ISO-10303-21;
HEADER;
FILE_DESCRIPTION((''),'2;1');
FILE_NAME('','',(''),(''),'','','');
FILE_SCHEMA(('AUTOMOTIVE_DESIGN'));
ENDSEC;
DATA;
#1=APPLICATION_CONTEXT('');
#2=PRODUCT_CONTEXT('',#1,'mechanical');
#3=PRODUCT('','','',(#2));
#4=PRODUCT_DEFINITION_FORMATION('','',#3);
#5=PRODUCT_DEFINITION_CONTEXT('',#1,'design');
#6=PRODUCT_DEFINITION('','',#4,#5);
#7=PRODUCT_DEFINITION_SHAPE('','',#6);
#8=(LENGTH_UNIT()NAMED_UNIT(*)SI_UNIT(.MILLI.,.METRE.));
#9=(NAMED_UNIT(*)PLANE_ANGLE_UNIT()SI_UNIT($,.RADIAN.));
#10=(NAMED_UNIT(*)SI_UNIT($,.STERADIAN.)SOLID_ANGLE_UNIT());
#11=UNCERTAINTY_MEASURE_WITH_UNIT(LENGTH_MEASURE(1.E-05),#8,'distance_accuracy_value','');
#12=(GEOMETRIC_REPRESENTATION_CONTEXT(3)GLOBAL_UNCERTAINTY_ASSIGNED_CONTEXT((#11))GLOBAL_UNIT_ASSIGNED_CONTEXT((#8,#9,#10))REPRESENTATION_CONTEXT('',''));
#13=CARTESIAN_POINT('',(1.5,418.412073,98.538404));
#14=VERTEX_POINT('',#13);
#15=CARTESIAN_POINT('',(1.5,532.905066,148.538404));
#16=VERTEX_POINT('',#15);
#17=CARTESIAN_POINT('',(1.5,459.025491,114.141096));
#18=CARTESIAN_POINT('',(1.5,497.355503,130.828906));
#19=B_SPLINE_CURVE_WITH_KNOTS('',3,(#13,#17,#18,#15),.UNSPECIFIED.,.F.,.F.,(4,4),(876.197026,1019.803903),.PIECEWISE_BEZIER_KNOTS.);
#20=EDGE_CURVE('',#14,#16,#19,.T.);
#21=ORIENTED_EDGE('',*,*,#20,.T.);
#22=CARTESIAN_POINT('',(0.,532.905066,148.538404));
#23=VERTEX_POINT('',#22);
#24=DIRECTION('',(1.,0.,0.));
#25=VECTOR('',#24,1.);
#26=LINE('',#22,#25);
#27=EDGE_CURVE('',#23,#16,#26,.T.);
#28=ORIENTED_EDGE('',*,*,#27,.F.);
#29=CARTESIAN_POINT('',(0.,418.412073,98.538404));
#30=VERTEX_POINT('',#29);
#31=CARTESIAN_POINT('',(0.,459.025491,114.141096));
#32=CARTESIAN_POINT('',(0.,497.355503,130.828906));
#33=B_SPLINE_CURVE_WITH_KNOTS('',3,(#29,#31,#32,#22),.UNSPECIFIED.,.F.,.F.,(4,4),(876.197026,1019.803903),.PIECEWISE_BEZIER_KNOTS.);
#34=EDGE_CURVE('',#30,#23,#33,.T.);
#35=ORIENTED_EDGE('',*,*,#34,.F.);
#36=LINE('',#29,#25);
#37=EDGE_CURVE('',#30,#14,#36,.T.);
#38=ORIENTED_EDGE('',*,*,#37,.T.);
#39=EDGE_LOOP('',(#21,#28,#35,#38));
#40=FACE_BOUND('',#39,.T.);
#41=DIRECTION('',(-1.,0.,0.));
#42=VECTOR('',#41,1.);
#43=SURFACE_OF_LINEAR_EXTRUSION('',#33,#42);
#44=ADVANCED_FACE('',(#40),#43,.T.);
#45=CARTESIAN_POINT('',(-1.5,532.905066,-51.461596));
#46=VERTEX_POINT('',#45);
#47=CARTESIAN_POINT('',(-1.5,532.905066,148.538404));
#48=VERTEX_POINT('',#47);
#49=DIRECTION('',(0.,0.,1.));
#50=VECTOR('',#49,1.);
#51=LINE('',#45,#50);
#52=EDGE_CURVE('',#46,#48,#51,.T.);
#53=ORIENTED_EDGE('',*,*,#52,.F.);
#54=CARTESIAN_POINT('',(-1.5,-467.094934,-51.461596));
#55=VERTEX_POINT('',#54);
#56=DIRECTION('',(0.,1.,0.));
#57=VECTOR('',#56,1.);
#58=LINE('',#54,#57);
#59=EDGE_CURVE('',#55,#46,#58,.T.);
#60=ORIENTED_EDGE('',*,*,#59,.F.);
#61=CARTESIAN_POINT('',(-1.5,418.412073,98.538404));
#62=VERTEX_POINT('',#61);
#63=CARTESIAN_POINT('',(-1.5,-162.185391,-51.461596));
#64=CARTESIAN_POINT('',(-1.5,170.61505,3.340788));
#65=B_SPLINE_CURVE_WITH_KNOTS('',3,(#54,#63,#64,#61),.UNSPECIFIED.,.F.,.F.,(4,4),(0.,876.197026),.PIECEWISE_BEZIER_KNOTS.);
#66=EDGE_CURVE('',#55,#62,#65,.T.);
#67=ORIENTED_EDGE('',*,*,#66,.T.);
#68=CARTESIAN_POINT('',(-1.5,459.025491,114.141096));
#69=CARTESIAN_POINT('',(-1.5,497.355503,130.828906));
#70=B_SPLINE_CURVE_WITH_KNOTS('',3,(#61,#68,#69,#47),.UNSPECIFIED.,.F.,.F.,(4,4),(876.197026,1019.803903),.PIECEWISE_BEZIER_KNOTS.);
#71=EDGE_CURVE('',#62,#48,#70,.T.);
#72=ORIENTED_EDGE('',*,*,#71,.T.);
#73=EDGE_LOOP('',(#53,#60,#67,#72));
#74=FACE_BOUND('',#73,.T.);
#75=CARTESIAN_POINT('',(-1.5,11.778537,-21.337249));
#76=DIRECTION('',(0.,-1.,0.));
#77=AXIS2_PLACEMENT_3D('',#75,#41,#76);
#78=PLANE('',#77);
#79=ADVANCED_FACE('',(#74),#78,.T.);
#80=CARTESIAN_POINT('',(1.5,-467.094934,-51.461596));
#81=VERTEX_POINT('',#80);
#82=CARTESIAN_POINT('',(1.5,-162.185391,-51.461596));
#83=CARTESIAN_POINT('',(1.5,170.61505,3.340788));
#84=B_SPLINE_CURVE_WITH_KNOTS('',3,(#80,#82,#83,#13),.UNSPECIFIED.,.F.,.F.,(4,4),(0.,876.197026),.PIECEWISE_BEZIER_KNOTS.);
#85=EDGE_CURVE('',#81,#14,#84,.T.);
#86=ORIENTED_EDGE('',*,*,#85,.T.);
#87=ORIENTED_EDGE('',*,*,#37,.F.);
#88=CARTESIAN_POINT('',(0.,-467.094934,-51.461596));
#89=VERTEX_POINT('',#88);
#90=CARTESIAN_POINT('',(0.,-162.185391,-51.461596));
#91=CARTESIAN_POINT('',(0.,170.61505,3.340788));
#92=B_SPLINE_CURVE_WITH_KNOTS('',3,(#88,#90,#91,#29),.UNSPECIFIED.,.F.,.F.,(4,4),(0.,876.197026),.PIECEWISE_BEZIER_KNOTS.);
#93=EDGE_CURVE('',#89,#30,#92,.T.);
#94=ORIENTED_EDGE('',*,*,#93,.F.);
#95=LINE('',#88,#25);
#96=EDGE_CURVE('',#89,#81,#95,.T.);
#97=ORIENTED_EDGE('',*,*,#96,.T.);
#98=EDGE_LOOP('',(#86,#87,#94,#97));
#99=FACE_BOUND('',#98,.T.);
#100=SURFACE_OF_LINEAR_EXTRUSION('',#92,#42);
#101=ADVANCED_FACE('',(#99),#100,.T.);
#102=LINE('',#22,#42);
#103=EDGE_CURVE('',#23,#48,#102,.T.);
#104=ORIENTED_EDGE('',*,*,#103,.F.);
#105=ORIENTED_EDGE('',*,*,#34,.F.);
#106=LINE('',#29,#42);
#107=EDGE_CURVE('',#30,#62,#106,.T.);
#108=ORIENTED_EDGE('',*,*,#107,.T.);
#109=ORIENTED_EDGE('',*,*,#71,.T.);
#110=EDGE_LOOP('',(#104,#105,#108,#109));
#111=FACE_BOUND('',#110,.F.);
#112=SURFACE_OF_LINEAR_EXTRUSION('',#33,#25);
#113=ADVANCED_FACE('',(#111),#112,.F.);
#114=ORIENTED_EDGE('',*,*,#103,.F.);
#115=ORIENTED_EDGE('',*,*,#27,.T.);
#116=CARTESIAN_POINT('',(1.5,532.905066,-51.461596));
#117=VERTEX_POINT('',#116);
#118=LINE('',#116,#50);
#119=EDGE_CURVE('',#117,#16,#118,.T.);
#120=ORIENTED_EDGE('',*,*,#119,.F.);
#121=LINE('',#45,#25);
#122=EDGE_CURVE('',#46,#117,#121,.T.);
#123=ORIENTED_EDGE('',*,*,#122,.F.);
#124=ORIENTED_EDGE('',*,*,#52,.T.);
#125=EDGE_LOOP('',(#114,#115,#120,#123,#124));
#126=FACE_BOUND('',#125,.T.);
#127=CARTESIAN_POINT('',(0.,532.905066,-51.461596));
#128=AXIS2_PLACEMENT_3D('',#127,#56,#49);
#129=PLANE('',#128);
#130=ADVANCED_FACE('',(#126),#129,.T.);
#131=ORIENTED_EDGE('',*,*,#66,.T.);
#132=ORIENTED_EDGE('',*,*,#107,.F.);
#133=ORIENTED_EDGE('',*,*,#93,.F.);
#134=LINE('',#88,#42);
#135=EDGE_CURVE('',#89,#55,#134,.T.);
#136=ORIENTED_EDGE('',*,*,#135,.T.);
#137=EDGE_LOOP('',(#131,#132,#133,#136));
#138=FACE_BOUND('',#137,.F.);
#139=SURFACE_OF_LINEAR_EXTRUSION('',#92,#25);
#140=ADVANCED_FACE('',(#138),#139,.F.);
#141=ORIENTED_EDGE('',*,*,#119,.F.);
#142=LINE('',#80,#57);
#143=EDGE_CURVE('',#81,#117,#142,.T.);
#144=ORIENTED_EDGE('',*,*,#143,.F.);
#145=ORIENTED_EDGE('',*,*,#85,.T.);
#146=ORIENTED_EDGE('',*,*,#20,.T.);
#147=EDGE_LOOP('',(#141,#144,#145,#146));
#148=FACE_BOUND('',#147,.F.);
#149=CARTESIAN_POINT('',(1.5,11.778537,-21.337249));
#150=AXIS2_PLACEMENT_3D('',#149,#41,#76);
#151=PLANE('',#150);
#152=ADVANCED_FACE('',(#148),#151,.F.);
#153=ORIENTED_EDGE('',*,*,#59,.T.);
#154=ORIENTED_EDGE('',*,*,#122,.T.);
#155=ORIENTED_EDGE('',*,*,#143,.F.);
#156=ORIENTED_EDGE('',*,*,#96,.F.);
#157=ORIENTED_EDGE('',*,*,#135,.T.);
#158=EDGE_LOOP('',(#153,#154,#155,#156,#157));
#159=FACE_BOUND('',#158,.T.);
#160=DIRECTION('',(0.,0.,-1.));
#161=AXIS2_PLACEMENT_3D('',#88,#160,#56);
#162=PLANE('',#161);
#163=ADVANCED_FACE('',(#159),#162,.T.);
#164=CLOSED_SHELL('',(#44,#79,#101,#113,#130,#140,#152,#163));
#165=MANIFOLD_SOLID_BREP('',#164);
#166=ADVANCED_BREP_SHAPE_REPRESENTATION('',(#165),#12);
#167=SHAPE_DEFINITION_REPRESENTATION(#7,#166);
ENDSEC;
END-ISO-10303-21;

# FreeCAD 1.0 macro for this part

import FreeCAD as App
import Part
import Sketcher

V = App.Vector

doc = App.newDocument("Part")
body = doc.addObject("PartDesign::Body", "Body")

# Sketch on YZ plane
sketch1 = body.newObject("Sketcher::SketchObject", "Sketch")
sketch1.AttachmentSupport = (doc.getObject("YZ_Plane"), [""])
sketch1.MapMode = "FlatFace"
sketch1.addGeometry(Part.BSplineCurve([V(-467.094934, -51.461596, 0), V(-162.185391, -51.461596, 0), V(170.61505, 3.340788, 0), V(418.412073, 98.538404, 0)], [4, 4], [0, 876.197026], False, 3, [1, 1, 1, 1], False), False)
sketch1.addGeometry(Part.LineSegment(V(-467.094934, -51.461596, 0), V(532.905066, -51.461596, 0)), False)
sketch1.addGeometry(Part.LineSegment(V(532.905066, -51.461596, 0), V(532.905066, 148.538404, 0)), False)
sketch1.addGeometry(Part.BSplineCurve([V(418.412073, 98.538404, 0), V(459.025491, 114.141096, 0), V(497.355503, 130.828906, 0), V(532.905066, 148.538404, 0)], [4, 4], [876.197026, 1019.803903], False, 3, [1, 1, 1, 1], False), False)
sketch1.addConstraint(Sketcher.Constraint("Block", 0))
sketch1.addConstraint(Sketcher.Constraint("Block", 3))
sketch1.addConstraint(Sketcher.Constraint("Coincident", 0, 1, 1, 1))
sketch1.addConstraint(Sketcher.Constraint("Coincident", 1, 2, 2, 1))
sketch1.addConstraint(Sketcher.Constraint("Coincident", 2, 2, 3, 2))
sketch1.addConstraint(Sketcher.Constraint("Horizontal", 1))
sketch1.addConstraint(Sketcher.Constraint("Vertical", 2))
pad1 = body.newObject("PartDesign::Pad", "Pad")
pad1.Profile = sketch1
pad1.Length = 3
pad1.Midplane = True

doc.recompute()
